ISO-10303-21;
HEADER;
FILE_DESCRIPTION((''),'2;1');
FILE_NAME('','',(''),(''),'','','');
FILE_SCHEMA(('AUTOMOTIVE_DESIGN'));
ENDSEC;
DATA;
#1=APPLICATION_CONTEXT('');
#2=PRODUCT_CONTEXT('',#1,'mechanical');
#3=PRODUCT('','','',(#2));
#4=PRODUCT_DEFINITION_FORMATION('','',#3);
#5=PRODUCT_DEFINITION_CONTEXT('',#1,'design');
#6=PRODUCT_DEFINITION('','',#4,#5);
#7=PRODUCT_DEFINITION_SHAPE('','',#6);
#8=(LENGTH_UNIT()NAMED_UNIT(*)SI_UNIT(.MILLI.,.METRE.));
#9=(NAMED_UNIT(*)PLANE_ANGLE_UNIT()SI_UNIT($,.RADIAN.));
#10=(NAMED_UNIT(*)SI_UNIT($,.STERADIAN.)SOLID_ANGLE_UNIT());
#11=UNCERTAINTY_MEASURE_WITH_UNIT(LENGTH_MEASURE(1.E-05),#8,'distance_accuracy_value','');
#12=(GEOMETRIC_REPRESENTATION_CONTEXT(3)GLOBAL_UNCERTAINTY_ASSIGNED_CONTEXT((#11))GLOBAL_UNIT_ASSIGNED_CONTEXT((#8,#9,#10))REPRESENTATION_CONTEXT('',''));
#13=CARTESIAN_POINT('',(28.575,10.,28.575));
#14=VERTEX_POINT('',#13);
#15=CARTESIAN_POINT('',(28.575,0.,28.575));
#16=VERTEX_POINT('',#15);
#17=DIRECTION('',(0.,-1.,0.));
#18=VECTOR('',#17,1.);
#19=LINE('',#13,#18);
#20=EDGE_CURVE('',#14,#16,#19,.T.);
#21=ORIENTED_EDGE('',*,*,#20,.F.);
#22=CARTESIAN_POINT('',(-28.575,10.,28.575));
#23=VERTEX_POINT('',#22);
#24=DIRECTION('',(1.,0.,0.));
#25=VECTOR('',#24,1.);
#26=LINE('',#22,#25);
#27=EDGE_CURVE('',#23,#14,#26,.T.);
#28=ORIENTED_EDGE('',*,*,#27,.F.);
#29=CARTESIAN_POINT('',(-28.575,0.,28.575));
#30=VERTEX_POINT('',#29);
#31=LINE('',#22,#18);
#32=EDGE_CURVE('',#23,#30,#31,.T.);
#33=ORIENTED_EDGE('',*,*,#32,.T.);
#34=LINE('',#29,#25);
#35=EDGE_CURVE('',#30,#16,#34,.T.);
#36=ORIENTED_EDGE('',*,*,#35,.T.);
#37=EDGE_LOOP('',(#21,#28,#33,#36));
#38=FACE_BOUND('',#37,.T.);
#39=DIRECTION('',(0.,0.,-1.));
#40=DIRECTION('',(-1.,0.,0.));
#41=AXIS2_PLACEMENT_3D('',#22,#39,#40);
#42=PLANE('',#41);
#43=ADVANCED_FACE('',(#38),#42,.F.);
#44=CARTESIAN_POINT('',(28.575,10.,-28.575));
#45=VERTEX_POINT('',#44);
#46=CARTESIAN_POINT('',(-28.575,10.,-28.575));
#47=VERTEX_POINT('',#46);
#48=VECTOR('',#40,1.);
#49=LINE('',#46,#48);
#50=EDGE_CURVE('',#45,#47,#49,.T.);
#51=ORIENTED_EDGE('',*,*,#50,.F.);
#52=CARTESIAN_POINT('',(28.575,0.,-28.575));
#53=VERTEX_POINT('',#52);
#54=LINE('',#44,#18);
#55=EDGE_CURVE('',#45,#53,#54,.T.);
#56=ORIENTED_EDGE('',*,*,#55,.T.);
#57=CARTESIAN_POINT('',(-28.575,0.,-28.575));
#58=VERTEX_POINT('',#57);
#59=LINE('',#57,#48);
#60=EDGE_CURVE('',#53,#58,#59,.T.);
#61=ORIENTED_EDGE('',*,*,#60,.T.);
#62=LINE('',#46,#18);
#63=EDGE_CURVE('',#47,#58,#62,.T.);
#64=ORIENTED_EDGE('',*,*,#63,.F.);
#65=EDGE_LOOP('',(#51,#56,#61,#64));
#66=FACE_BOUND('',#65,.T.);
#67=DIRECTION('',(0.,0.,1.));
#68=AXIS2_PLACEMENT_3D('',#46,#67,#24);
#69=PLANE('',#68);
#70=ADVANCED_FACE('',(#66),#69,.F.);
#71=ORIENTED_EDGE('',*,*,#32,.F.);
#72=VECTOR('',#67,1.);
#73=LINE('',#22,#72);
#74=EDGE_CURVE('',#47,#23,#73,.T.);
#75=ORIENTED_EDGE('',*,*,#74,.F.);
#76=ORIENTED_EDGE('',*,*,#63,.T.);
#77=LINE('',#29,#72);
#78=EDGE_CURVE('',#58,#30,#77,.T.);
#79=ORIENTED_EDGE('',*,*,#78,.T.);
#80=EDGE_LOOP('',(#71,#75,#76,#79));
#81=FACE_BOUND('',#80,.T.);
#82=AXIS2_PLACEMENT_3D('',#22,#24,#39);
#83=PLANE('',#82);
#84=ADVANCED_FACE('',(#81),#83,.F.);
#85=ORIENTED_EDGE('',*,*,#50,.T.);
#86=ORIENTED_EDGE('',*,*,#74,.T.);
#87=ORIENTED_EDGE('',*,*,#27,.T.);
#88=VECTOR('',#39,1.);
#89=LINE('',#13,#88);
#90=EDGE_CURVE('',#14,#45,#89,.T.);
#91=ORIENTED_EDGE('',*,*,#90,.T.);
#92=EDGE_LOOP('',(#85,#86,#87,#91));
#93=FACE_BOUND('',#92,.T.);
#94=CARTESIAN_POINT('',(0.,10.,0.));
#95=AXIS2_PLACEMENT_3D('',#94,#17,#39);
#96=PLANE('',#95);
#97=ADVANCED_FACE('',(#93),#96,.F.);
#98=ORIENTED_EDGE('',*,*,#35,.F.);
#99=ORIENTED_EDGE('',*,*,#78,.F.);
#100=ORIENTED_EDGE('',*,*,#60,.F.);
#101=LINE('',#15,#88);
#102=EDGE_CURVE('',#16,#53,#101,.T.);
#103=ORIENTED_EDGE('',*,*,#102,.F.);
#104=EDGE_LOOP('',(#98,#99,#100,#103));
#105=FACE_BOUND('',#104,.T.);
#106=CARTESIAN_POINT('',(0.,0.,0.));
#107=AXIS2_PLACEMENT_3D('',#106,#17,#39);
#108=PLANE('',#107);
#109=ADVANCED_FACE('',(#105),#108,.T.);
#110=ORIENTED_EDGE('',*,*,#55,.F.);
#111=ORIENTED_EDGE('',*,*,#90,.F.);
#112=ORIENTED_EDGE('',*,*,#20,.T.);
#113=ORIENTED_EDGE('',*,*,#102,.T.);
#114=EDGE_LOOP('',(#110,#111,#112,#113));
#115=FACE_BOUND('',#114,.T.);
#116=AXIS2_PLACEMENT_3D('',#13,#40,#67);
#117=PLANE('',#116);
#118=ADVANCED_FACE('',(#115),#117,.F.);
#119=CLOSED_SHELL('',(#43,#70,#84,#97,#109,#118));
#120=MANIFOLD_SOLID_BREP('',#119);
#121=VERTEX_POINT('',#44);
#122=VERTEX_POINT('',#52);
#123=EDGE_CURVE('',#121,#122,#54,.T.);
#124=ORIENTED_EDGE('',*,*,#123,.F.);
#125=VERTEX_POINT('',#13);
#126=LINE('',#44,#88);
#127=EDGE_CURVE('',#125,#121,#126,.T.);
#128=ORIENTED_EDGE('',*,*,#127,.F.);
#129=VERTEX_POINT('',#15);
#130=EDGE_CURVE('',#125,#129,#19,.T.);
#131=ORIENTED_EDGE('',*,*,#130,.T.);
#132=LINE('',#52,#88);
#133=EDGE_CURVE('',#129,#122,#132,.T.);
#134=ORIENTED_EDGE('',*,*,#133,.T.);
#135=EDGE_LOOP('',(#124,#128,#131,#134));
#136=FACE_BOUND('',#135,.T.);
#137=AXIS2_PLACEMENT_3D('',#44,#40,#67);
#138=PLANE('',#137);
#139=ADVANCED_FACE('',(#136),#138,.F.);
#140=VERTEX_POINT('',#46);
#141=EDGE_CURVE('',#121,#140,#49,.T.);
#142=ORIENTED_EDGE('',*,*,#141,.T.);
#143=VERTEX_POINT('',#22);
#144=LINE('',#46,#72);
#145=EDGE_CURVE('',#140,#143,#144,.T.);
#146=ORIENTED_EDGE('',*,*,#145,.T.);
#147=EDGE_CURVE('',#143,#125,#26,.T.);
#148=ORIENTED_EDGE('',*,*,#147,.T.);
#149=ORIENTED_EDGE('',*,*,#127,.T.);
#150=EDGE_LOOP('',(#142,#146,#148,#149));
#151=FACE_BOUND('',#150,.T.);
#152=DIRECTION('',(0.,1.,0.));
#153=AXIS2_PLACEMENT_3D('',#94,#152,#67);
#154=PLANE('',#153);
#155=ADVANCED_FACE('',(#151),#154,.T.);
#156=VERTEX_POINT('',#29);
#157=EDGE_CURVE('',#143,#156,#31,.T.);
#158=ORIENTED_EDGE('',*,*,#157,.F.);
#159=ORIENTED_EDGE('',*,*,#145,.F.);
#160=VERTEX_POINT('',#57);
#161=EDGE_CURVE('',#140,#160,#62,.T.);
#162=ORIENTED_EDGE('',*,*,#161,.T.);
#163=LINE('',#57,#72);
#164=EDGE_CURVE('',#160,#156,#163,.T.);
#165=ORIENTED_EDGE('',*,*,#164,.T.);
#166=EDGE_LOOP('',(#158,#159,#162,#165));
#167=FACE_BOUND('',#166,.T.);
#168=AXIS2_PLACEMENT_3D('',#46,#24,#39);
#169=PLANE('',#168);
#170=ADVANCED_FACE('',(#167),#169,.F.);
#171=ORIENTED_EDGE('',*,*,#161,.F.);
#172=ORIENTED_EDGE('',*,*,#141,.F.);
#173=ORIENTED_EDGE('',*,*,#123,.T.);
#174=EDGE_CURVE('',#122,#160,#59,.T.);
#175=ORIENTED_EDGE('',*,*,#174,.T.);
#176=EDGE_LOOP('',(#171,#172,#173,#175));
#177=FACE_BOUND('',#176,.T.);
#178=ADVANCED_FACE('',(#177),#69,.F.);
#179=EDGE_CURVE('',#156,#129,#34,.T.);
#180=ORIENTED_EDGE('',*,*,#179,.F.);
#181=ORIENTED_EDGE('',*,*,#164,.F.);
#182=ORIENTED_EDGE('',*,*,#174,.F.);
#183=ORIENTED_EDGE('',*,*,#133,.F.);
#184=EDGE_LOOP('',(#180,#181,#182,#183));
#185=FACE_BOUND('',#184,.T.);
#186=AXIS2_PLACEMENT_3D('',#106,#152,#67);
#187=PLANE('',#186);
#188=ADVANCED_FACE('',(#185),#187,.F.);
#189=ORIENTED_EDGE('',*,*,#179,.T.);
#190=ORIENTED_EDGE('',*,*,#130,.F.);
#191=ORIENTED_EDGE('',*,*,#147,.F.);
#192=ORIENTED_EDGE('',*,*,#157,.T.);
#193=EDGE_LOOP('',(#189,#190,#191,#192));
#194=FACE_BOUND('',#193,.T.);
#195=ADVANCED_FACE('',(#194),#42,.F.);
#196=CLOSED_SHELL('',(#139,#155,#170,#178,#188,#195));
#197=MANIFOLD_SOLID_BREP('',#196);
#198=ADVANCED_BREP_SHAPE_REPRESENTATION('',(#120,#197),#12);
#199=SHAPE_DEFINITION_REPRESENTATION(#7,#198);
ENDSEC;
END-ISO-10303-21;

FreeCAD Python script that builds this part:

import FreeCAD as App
import Part
import Sketcher
Q = App.Units.Quantity

doc = App.newDocument("Part")
body = doc.addObject("PartDesign::Body", "Body")

sketch1 = doc.addObject("Sketcher::SketchObject", "Sketch")
body.addObject(sketch1)
sketch1.AttachmentSupport = (doc.XZ_Plane, [""])
sketch1.MapMode = "FlatFace"
sketch1.addGeometry([
    Part.LineSegment(App.Vector(-28.575, -28.575, 0), App.Vector(-28.575, 28.575, 0)),
    Part.LineSegment(App.Vector(-28.575, 28.575, 0), App.Vector(28.575, 28.575, 0)),
    Part.LineSegment(App.Vector(28.575, 28.575, 0), App.Vector(28.575, -28.575, 0)),
    Part.LineSegment(App.Vector(28.575, -28.575, 0), App.Vector(-28.575, -28.575, 0)),
], False)
sketch1.addConstraint([
    Sketcher.Constraint("Coincident", 0, 2, 1, 1),
    Sketcher.Constraint("Coincident", 1, 2, 2, 1),
    Sketcher.Constraint("Coincident", 2, 2, 3, 1),
    Sketcher.Constraint("Coincident", 3, 2, 0, 1),
    Sketcher.Constraint("Vertical", 0),
    Sketcher.Constraint("Horizontal", 1),
    Sketcher.Constraint("Vertical", 2),
    Sketcher.Constraint("Horizontal", 3),
    Sketcher.Constraint("Symmetric", 0, 2, 2, 2, -1, 1),
    Sketcher.Constraint("Equal", 3, 0),
    Sketcher.Constraint("DistanceX", 1, 1, 1, 2, Q("57.15 mm")),
])
pad1 = doc.addObject("PartDesign::Pad", "Pad")
body.addObject(pad1)
pad1.Profile = sketch1
pad1.Length = 10
pad1.Reversed = True
body2 = doc.addObject("PartDesign::Body", "Body001")

sketch2 = doc.addObject("Sketcher::SketchObject", "Sketch001")
body2.addObject(sketch2)
sketch2.AttachmentSupport = (doc.getObject("XZ_Plane001"), [""])
sketch2.MapMode = "FlatFace"
sketch2.addGeometry([
    Part.LineSegment(App.Vector(-28.575, -28.575, 0), App.Vector(-28.575, 28.575, 0)),
    Part.LineSegment(App.Vector(-28.575, 28.575, 0), App.Vector(28.575, 28.575, 0)),
    Part.LineSegment(App.Vector(28.575, 28.575, 0), App.Vector(28.575, -28.575, 0)),
    Part.LineSegment(App.Vector(28.575, -28.575, 0), App.Vector(-28.575, -28.575, 0)),
], False)
sketch2.addConstraint([
    Sketcher.Constraint("Coincident", 0, 2, 1, 1),
    Sketcher.Constraint("Coincident", 1, 2, 2, 1),
    Sketcher.Constraint("Coincident", 2, 2, 3, 1),
    Sketcher.Constraint("Coincident", 3, 2, 0, 1),
    Sketcher.Constraint("Vertical", 0),
    Sketcher.Constraint("Horizontal", 1),
    Sketcher.Constraint("Vertical", 2),
    Sketcher.Constraint("Horizontal", 3),
    Sketcher.Constraint("Symmetric", 0, 2, 2, 2, -1, 1),
    Sketcher.Constraint("Equal", 3, 0),
    Sketcher.Constraint("DistanceX", 1, 1, 1, 2, Q("57.15 mm")),
])
pad2 = doc.addObject("PartDesign::Pad", "Pad001")
body2.addObject(pad2)
pad2.Profile = sketch2
pad2.Length = 10
pad2.Reversed = True

doc.recompute()
